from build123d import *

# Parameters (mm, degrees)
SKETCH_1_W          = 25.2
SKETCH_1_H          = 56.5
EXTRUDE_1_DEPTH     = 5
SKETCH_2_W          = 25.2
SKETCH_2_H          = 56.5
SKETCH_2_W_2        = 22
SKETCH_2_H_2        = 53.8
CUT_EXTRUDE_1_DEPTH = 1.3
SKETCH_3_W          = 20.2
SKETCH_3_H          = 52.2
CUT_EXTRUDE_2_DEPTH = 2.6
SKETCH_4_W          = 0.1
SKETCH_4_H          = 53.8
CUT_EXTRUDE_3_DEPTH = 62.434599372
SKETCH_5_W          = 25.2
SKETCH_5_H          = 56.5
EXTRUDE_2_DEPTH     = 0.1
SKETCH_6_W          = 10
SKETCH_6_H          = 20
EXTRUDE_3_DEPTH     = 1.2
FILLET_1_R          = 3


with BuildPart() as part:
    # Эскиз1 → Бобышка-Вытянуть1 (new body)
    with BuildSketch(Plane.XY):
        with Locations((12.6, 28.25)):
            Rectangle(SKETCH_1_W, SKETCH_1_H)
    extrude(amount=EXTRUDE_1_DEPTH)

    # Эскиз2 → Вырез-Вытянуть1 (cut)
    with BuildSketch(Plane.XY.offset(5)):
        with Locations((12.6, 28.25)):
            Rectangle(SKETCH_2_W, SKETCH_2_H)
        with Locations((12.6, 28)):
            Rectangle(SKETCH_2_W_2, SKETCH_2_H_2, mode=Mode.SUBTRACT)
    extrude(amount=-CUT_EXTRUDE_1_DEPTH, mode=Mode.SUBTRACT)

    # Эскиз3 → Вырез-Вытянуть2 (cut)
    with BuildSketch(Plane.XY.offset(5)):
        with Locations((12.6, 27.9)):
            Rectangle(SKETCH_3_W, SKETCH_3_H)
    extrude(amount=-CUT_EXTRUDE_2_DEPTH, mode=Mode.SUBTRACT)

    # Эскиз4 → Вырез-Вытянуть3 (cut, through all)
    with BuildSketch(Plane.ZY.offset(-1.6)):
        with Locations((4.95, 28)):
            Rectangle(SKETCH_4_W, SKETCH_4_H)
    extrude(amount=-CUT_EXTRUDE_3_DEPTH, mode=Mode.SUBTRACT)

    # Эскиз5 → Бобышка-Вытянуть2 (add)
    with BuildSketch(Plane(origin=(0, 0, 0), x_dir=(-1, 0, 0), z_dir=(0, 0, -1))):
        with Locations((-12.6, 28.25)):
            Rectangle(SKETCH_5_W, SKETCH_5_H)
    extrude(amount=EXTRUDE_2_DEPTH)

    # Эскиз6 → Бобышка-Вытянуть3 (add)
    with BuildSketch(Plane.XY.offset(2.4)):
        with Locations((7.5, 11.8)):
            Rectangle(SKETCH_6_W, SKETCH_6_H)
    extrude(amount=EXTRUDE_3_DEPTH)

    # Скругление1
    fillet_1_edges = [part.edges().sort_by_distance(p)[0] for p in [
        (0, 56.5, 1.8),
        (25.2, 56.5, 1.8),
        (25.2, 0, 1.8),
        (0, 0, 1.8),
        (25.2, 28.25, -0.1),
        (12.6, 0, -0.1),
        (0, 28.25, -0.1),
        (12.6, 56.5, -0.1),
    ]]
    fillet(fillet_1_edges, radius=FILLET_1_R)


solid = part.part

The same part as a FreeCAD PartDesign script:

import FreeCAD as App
import Part
import Sketcher
Q = App.Units.Quantity


def edges_at(feature, points):
    """Names of the edges that pass closest to the given points."""
    edges = feature.Shape.Edges
    near = lambda p: min(range(len(edges)), key=lambda i: edges[i].distToShape(Part.Vertex(*p))[0])
    return sorted({f"Edge{near(p) + 1}" for p in points})

doc = App.newDocument("Part")
body = doc.addObject("PartDesign::Body", "Body")

# Sketch on XY plane
sketch1 = body.newObject("Sketcher::SketchObject", "Sketch")
sketch1.AttachmentSupport = (doc.getObject("XY_Plane"), [""])
sketch1.MapMode = "FlatFace"
sketch1.addGeometry([
    Part.LineSegment(App.Vector(0, 56, 0), App.Vector(0, 0, 0)),
    Part.LineSegment(App.Vector(0, 0, 0), App.Vector(25, 0, 0)),
    Part.LineSegment(App.Vector(25, 0, 0), App.Vector(25, 56, 0)),
    Part.LineSegment(App.Vector(25, 56, 0), App.Vector(0, 56, 0)),
], False)
sketch1.addConstraint([
    Sketcher.Constraint("Coincident", 0, 2, 1, 1),
    Sketcher.Constraint("Coincident", 1, 2, 2, 1),
    Sketcher.Constraint("Coincident", 2, 2, 3, 1),
    Sketcher.Constraint("Coincident", 3, 2, 0, 1),
    Sketcher.Constraint("Vertical", 0),
    Sketcher.Constraint("Horizontal", 1),
    Sketcher.Constraint("Vertical", 2),
    Sketcher.Constraint("Horizontal", 3),
    Sketcher.Constraint("Coincident", 0, 2, -1, 1),
    Sketcher.Constraint("DistanceX", 1, 1, 1, 2, Q("25.2 mm")),
    Sketcher.Constraint("DistanceY", 0, 2, 0, 1, Q("56.5 mm")),
])
pad1 = body.newObject("PartDesign::Pad", "Pad")
pad1.Profile = sketch1
pad1.Length = 5

# Sketch on XY plane
sketch2 = body.newObject("Sketcher::SketchObject", "Sketch001")
sketch2.AttachmentSupport = (doc.getObject("XY_Plane"), [""])
sketch2.MapMode = "FlatFace"
sketch2.AttachmentOffset = App.Placement(App.Vector(0, 0, 5), App.Rotation())
sketch2.addGeometry([
    Part.LineSegment(App.Vector(0, 56, 0), App.Vector(0, 0, 0)),  # 0
    Part.LineSegment(App.Vector(0, 0, 0), App.Vector(25, 0, 0)),  # 1
    Part.LineSegment(App.Vector(25, 0, 0), App.Vector(25, 56, 0)),  # 2
    Part.LineSegment(App.Vector(25, 56, 0), App.Vector(0, 56, 0)),  # 3
    Part.LineSegment(App.Vector(24, 1, 0), App.Vector(2, 1, 0)),  # 4
    Part.LineSegment(App.Vector(2, 1, 0), App.Vector(2, 55, 0)),  # 5
    Part.LineSegment(App.Vector(2, 55, 0), App.Vector(24, 55, 0)),  # 6
    Part.LineSegment(App.Vector(24, 55, 0), App.Vector(24, 1, 0)),  # 7
], False)
sketch2.addConstraint([
    Sketcher.Constraint("Coincident", 0, 2, 1, 1),
    Sketcher.Constraint("Coincident", 1, 2, 2, 1),
    Sketcher.Constraint("Coincident", 2, 2, 3, 1),
    Sketcher.Constraint("Coincident", 3, 2, 0, 1),
    Sketcher.Constraint("Coincident", 4, 2, 5, 1),
    Sketcher.Constraint("Coincident", 5, 2, 6, 1),
    Sketcher.Constraint("Coincident", 6, 2, 7, 1),
    Sketcher.Constraint("Coincident", 7, 2, 4, 1),
    Sketcher.Constraint("Vertical", 0),
    Sketcher.Constraint("Horizontal", 1),
    Sketcher.Constraint("Vertical", 2),
    Sketcher.Constraint("Horizontal", 3),
    Sketcher.Constraint("Horizontal", 4),
    Sketcher.Constraint("Vertical", 5),
    Sketcher.Constraint("Horizontal", 6),
    Sketcher.Constraint("Vertical", 7),
    Sketcher.Constraint("Coincident", 0, 2, -1, 1),
    Sketcher.Constraint("DistanceX", 4, 2, 4, 1, Q("22 mm")),
    Sketcher.Constraint("DistanceX", 1, 1, 1, 2, Q("25.2 mm")),
    Sketcher.Constraint("DistanceY", 0, 2, 0, 1, Q("56.5 mm")),
    Sketcher.Constraint("DistanceY", 5, 1, 5, 2, Q("53.8 mm")),
    Sketcher.Constraint("DistanceX", -1, 1, 4, 2, Q("1.6 mm")),
    Sketcher.Constraint("DistanceY", -1, 1, 4, 2, Q("1.1 mm")),
])
pocket1 = body.newObject("PartDesign::Pocket", "Pocket")
pocket1.Profile = sketch2
pocket1.Length = 1.3

# Sketch on XY plane
sketch3 = body.newObject("Sketcher::SketchObject", "Sketch002")
sketch3.AttachmentSupport = (doc.getObject("XY_Plane"), [""])
sketch3.MapMode = "FlatFace"
sketch3.AttachmentOffset = App.Placement(App.Vector(0, 0, 5), App.Rotation())
sketch3.addGeometry([
    Part.LineSegment(App.Vector(2, 54, 0), App.Vector(2, 2, 0)),
    Part.LineSegment(App.Vector(2, 2, 0), App.Vector(23, 2, 0)),
    Part.LineSegment(App.Vector(23, 2, 0), App.Vector(23, 54, 0)),
    Part.LineSegment(App.Vector(23, 54, 0), App.Vector(2, 54, 0)),
], False)
sketch3.addConstraint([
    Sketcher.Constraint("Coincident", 0, 2, 1, 1),
    Sketcher.Constraint("Coincident", 1, 2, 2, 1),
    Sketcher.Constraint("Coincident", 2, 2, 3, 1),
    Sketcher.Constraint("Coincident", 3, 2, 0, 1),
    Sketcher.Constraint("Vertical", 0),
    Sketcher.Constraint("Horizontal", 1),
    Sketcher.Constraint("Vertical", 2),
    Sketcher.Constraint("Horizontal", 3),
    Sketcher.Constraint("DistanceX", 1, 1, 1, 2, Q("20.2 mm")),
    Sketcher.Constraint("DistanceY", 0, 2, 0, 1, Q("52.2 mm")),
    Sketcher.Constraint("DistanceY", -1, 1, 2, 2, Q("54 mm")),
    Sketcher.Constraint("DistanceX", -1, 1, 0, 2, Q("2.5 mm")),
])
pocket2 = body.newObject("PartDesign::Pocket", "Pocket001")
pocket2.Profile = sketch3
pocket2.Length = 2.6

# Sketch on YZ plane
sketch4 = body.newObject("Sketcher::SketchObject", "Sketch003")
sketch4.AttachmentSupport = (doc.getObject("YZ_Plane"), [""])
sketch4.MapMode = "FlatFace"
sketch4.AttachmentOffset = App.Placement(App.Vector(0, 0, 1.6), App.Rotation())
sketch4.addGeometry([
    Part.LineSegment(App.Vector(54.9, 4.9, 0), App.Vector(1.1, 4.9, 0)),
    Part.LineSegment(App.Vector(1.1, 4.9, 0), App.Vector(1.1, 5, 0)),
    Part.LineSegment(App.Vector(1.1, 5, 0), App.Vector(54.9, 5, 0)),
    Part.LineSegment(App.Vector(54.9, 5, 0), App.Vector(54.9, 4.9, 0)),
], False)
sketch4.addConstraint([
    Sketcher.Constraint("Coincident", 0, 2, 1, 1),
    Sketcher.Constraint("Coincident", 1, 2, 2, 1),
    Sketcher.Constraint("Coincident", 2, 2, 3, 1),
    Sketcher.Constraint("Coincident", 3, 2, 0, 1),
    Sketcher.Constraint("Horizontal", 0),
    Sketcher.Constraint("Vertical", 1),
    Sketcher.Constraint("Horizontal", 2),
    Sketcher.Constraint("Vertical", 3),
    Sketcher.Constraint("DistanceX", 0, 2, 0, 1, Q("53.8 mm")),
    Sketcher.Constraint("DistanceY", 1, 1, 1, 2, Q("0.1 mm")),
    Sketcher.Constraint("DistanceY", -1, 1, 1, 2, Q("5 mm")),
    Sketcher.Constraint("DistanceX", -1, 1, 0, 2, Q("1.1 mm")),
])
pocket3 = body.newObject("PartDesign::Pocket", "Pocket002")
pocket3.Profile = sketch4
pocket3.Type = "ThroughAll"
pocket3.Reversed = True

# Sketch on XY plane
sketch5 = body.newObject("Sketcher::SketchObject", "Sketch004")
sketch5.AttachmentSupport = (doc.getObject("XY_Plane"), [""])
sketch5.MapMode = "FlatFace"
sketch5.addGeometry([
    Part.LineSegment(App.Vector(25, 56, 0), App.Vector(25, 0, 0)),
    Part.LineSegment(App.Vector(25, 0, 0), App.Vector(0, 0, 0)),
    Part.LineSegment(App.Vector(0, 0, 0), App.Vector(0, 56, 0)),
    Part.LineSegment(App.Vector(0, 56, 0), App.Vector(25, 56, 0)),
], False)
sketch5.addConstraint([
    Sketcher.Constraint("Coincident", 0, 2, 1, 1),
    Sketcher.Constraint("Coincident", 1, 2, 2, 1),
    Sketcher.Constraint("Coincident", 2, 2, 3, 1),
    Sketcher.Constraint("Coincident", 3, 2, 0, 1),
    Sketcher.Constraint("Vertical", 0),
    Sketcher.Constraint("Horizontal", 1),
    Sketcher.Constraint("Vertical", 2),
    Sketcher.Constraint("Horizontal", 3),
    Sketcher.Constraint("Coincident", 1, 2, -1, 1),
    Sketcher.Constraint("DistanceX", 1, 2, 1, 1, Q("25.2 mm")),
    Sketcher.Constraint("DistanceY", 0, 2, 0, 1, Q("56.5 mm")),
])
pad2 = body.newObject("PartDesign::Pad", "Pad001")
pad2.Profile = sketch5
pad2.Length = 0.1
pad2.Reversed = True

# Sketch on XY plane
sketch6 = body.newObject("Sketcher::SketchObject", "Sketch005")
sketch6.AttachmentSupport = (doc.getObject("XY_Plane"), [""])
sketch6.MapMode = "FlatFace"
sketch6.AttachmentOffset = App.Placement(App.Vector(0, 0, 2.4), App.Rotation())
sketch6.addGeometry([
    Part.LineSegment(App.Vector(2, 22, 0), App.Vector(2, 2, 0)),
    Part.LineSegment(App.Vector(2, 2, 0), App.Vector(12, 2, 0)),
    Part.LineSegment(App.Vector(12, 2, 0), App.Vector(12, 22, 0)),
    Part.LineSegment(App.Vector(12, 22, 0), App.Vector(2, 22, 0)),
], False)
sketch6.addConstraint([
    Sketcher.Constraint("Coincident", 0, 2, 1, 1),
    Sketcher.Constraint("Coincident", 1, 2, 2, 1),
    Sketcher.Constraint("Coincident", 2, 2, 3, 1),
    Sketcher.Constraint("Coincident", 3, 2, 0, 1),
    Sketcher.Constraint("Vertical", 0),
    Sketcher.Constraint("Horizontal", 1),
    Sketcher.Constraint("Vertical", 2),
    Sketcher.Constraint("Horizontal", 3),
    Sketcher.Constraint("DistanceX", 1, 1, 1, 2, Q("10 mm")),
    Sketcher.Constraint("DistanceY", 0, 2, 0, 1, Q("20 mm")),
    Sketcher.Constraint("DistanceX", -1, 1, 0, 2, Q("2.5 mm")),
    Sketcher.Constraint("DistanceY", -1, 1, 0, 2, Q("1.8 mm")),
])
pad3 = body.newObject("PartDesign::Pad", "Pad002")
pad3.Profile = sketch6
pad3.Length = 1.2
doc.recompute()

fillet = body.newObject("PartDesign::Fillet", "Fillet")
fillet.Base = (pad3, edges_at(pad3, [
    (0, 56.5, 1.8),
    (25.2, 56.5, 1.8),
    (25.2, 0, 1.8),
    (0, 0, 1.8),
    (25.2, 28.25, -0.1),
    (12.6, 0, -0.1),
    (0, 28.25, -0.1),
    (12.6, 56.5, -0.1),
]))
fillet.Radius = 3

doc.recompute()
